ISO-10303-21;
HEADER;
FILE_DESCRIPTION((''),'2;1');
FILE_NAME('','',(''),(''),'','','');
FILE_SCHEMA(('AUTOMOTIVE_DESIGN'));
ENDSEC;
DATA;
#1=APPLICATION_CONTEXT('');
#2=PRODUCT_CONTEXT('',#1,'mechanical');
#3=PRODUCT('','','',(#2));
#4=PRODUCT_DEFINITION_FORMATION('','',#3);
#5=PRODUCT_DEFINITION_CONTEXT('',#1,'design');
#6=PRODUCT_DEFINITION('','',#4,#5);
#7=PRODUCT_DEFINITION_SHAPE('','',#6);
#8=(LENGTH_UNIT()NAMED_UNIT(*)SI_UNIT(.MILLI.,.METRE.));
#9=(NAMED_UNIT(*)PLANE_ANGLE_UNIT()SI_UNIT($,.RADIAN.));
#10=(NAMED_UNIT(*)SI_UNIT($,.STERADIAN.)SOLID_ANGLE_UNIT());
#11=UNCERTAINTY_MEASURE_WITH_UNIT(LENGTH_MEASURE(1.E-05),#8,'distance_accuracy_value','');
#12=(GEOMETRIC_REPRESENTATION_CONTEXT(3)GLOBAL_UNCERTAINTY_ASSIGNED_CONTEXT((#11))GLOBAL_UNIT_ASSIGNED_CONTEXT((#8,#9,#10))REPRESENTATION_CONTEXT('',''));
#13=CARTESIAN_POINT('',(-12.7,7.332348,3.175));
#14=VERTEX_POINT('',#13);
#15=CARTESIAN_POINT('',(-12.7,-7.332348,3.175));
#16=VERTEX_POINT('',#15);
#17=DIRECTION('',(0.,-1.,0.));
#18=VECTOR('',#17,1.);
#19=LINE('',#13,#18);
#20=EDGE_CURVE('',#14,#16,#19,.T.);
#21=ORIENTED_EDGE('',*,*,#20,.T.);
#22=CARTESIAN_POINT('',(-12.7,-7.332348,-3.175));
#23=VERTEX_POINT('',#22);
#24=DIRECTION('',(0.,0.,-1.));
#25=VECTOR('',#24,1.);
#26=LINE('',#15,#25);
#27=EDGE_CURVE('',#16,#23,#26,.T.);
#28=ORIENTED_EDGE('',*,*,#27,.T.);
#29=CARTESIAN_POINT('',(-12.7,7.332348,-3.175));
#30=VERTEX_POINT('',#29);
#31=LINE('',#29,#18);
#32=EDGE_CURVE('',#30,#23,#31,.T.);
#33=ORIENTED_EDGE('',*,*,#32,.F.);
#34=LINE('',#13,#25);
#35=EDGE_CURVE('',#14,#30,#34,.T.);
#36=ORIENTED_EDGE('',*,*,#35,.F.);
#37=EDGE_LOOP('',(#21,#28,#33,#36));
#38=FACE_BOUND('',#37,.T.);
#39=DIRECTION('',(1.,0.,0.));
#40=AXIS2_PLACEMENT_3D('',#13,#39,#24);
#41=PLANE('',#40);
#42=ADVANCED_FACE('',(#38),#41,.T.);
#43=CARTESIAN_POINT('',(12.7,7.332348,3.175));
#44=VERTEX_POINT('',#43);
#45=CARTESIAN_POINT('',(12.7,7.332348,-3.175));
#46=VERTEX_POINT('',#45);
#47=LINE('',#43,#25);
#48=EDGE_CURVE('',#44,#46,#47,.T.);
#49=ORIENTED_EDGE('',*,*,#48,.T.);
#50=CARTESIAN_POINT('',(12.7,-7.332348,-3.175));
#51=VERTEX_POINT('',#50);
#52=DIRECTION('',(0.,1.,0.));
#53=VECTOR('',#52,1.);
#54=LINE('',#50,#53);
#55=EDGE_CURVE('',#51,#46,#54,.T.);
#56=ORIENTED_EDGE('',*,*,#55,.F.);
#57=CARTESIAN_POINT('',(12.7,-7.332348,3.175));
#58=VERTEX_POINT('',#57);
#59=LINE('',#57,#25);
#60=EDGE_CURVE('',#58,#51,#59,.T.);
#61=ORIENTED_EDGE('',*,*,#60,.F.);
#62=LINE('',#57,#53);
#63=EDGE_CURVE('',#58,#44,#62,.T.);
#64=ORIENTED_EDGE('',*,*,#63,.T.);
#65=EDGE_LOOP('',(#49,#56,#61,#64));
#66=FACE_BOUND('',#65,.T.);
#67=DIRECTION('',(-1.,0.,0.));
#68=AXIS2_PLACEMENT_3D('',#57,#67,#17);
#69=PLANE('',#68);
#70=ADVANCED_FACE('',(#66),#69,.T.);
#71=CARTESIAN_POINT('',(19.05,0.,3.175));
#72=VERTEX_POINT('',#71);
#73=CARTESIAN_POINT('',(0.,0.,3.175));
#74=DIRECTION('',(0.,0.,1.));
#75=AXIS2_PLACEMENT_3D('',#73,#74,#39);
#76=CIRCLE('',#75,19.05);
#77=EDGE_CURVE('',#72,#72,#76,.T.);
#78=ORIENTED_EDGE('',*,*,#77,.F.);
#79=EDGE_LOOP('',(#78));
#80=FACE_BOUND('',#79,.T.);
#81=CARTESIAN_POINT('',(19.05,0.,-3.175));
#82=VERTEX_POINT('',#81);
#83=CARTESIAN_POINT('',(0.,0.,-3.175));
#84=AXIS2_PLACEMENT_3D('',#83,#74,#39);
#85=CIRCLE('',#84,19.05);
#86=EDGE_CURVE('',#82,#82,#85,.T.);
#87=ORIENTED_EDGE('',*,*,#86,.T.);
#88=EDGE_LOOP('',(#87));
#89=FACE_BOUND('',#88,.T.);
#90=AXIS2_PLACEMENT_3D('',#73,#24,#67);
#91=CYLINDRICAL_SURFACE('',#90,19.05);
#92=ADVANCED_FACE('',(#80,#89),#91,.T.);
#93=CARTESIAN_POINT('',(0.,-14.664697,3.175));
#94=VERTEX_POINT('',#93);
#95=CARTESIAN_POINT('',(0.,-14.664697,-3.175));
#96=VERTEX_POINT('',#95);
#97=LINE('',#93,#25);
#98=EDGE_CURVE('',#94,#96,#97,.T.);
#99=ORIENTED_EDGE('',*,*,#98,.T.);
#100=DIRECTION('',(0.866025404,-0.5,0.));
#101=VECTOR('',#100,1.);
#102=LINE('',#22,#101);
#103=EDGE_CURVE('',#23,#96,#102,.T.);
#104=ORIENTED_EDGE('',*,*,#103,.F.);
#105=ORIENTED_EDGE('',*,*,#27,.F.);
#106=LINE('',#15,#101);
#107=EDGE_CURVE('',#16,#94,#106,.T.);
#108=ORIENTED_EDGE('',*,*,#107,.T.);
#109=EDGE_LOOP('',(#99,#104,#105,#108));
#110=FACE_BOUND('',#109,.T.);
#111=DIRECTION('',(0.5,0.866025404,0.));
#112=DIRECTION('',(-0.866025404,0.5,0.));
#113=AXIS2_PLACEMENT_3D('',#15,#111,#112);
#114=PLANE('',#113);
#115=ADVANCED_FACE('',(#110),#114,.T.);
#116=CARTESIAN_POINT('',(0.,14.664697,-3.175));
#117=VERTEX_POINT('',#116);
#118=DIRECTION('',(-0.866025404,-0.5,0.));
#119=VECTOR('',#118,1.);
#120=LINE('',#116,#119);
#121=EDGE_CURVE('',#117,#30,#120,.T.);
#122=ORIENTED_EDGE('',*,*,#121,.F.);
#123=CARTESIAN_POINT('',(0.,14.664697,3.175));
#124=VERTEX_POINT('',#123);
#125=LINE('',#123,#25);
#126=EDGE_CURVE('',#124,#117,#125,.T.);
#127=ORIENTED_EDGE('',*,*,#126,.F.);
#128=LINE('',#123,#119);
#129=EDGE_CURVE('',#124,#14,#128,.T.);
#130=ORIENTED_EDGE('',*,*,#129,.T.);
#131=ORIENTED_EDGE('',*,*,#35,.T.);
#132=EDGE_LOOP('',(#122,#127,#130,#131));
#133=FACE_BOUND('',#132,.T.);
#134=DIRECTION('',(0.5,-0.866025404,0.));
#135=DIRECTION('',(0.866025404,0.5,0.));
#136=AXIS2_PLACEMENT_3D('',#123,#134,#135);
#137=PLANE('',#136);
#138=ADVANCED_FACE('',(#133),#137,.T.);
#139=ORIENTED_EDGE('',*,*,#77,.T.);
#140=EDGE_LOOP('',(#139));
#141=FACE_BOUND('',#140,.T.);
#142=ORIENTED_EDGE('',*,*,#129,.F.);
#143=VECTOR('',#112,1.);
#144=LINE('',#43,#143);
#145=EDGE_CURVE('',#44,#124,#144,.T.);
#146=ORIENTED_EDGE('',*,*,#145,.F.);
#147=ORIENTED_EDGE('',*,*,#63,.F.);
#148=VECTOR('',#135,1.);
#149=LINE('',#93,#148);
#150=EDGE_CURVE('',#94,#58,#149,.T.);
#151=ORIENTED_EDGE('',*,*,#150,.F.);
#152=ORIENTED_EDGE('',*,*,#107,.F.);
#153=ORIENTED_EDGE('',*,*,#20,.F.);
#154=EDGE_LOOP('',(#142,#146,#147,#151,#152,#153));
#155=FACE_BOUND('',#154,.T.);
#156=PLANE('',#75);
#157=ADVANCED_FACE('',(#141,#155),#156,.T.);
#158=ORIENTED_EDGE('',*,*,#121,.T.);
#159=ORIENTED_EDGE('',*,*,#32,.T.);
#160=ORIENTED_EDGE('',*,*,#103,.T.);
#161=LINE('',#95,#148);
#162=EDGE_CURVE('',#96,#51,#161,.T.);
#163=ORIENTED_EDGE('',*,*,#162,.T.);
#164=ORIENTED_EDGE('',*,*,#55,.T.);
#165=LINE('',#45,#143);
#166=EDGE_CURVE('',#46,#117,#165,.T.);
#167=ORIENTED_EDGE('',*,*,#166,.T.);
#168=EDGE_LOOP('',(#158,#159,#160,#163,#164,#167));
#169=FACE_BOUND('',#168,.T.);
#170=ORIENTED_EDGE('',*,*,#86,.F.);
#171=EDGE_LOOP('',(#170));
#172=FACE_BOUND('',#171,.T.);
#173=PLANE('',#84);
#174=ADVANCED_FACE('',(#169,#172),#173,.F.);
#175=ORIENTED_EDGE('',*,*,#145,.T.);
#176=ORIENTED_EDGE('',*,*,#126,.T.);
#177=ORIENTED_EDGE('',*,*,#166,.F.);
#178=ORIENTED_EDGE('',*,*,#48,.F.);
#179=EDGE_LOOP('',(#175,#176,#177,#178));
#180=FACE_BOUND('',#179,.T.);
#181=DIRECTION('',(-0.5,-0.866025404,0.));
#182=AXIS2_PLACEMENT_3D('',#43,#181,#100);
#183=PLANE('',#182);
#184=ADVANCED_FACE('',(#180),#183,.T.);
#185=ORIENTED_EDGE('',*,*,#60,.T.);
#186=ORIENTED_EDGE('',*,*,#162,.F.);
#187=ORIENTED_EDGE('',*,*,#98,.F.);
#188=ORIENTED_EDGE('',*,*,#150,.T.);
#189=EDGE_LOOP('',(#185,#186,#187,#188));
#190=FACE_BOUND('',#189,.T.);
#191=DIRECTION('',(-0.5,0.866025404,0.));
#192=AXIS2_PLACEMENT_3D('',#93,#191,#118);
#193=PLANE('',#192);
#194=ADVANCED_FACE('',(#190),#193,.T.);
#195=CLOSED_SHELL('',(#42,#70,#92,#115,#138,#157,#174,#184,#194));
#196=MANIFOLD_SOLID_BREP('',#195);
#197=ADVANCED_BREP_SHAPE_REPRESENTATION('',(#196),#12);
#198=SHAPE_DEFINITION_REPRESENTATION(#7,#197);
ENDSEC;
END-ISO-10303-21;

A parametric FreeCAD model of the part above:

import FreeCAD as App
import Part
import Sketcher
Q = App.Units.Quantity

doc = App.newDocument("Part")
body = doc.addObject("PartDesign::Body", "Body")

sketch1 = body.newObject("Sketcher::SketchObject", "Sketch")
sketch1.AttachmentSupport = (doc.getObject("XY_Plane"), [""])
sketch1.MapMode = "FlatFace"
sketch1.addGeometry([
    Part.Circle(App.Vector(0, 0, 0), App.Vector(0, 0, 1), 19),
    Part.LineSegment(App.Vector(-13, 7, 0), App.Vector(0, 15, 0)),
    Part.LineSegment(App.Vector(0, 15, 0), App.Vector(13, 7, 0)),
    Part.LineSegment(App.Vector(13, 7, 0), App.Vector(13, -7, 0)),
    Part.LineSegment(App.Vector(13, -7, 0), App.Vector(0, -15, 0)),
    Part.LineSegment(App.Vector(0, -15, 0), App.Vector(-13, -7, 0)),
    Part.LineSegment(App.Vector(-13, -7, 0), App.Vector(-13, 7, 0)),
], False)
sketch1.addConstraint([
    Sketcher.Constraint("Coincident", 1, 2, 2, 1),
    Sketcher.Constraint("Coincident", 2, 2, 3, 1),
    Sketcher.Constraint("Coincident", 3, 2, 4, 1),
    Sketcher.Constraint("Coincident", 4, 2, 5, 1),
    Sketcher.Constraint("Coincident", 5, 2, 6, 1),
    Sketcher.Constraint("Coincident", 6, 2, 1, 1),
    Sketcher.Constraint("Vertical", 3),
    Sketcher.Constraint("Vertical", 6),
    Sketcher.Constraint("Coincident", 0, 3, -1, 1),
    Sketcher.Constraint("Symmetric", 1, 2, 4, 2, -1, 1),
    Sketcher.Constraint("Symmetric", 2, 2, 5, 2, -1, 1),
    Sketcher.Constraint("PointOnObject", 1, 2, -2),
    Sketcher.Constraint("Parallel", 1, 4),
    Sketcher.Constraint("Horizontal", 3, 2, 5, 2),
    Sketcher.Constraint("Diameter", 0, Q("1.5 in")),
    Sketcher.Constraint("Angle", 1, Q("30 deg")),
    Sketcher.Constraint("DistanceX", 5, 2, 3, 2, Q("1 in")),
    Sketcher.Constraint("DistanceY", 3, 2, 3, 1, Q("14.664697 mm")),
])
pad1 = body.newObject("PartDesign::Pad", "Pad")
pad1.Profile = sketch1
pad1.Length = Q("0.25 in")
pad1.Midplane = True

doc.recompute()
